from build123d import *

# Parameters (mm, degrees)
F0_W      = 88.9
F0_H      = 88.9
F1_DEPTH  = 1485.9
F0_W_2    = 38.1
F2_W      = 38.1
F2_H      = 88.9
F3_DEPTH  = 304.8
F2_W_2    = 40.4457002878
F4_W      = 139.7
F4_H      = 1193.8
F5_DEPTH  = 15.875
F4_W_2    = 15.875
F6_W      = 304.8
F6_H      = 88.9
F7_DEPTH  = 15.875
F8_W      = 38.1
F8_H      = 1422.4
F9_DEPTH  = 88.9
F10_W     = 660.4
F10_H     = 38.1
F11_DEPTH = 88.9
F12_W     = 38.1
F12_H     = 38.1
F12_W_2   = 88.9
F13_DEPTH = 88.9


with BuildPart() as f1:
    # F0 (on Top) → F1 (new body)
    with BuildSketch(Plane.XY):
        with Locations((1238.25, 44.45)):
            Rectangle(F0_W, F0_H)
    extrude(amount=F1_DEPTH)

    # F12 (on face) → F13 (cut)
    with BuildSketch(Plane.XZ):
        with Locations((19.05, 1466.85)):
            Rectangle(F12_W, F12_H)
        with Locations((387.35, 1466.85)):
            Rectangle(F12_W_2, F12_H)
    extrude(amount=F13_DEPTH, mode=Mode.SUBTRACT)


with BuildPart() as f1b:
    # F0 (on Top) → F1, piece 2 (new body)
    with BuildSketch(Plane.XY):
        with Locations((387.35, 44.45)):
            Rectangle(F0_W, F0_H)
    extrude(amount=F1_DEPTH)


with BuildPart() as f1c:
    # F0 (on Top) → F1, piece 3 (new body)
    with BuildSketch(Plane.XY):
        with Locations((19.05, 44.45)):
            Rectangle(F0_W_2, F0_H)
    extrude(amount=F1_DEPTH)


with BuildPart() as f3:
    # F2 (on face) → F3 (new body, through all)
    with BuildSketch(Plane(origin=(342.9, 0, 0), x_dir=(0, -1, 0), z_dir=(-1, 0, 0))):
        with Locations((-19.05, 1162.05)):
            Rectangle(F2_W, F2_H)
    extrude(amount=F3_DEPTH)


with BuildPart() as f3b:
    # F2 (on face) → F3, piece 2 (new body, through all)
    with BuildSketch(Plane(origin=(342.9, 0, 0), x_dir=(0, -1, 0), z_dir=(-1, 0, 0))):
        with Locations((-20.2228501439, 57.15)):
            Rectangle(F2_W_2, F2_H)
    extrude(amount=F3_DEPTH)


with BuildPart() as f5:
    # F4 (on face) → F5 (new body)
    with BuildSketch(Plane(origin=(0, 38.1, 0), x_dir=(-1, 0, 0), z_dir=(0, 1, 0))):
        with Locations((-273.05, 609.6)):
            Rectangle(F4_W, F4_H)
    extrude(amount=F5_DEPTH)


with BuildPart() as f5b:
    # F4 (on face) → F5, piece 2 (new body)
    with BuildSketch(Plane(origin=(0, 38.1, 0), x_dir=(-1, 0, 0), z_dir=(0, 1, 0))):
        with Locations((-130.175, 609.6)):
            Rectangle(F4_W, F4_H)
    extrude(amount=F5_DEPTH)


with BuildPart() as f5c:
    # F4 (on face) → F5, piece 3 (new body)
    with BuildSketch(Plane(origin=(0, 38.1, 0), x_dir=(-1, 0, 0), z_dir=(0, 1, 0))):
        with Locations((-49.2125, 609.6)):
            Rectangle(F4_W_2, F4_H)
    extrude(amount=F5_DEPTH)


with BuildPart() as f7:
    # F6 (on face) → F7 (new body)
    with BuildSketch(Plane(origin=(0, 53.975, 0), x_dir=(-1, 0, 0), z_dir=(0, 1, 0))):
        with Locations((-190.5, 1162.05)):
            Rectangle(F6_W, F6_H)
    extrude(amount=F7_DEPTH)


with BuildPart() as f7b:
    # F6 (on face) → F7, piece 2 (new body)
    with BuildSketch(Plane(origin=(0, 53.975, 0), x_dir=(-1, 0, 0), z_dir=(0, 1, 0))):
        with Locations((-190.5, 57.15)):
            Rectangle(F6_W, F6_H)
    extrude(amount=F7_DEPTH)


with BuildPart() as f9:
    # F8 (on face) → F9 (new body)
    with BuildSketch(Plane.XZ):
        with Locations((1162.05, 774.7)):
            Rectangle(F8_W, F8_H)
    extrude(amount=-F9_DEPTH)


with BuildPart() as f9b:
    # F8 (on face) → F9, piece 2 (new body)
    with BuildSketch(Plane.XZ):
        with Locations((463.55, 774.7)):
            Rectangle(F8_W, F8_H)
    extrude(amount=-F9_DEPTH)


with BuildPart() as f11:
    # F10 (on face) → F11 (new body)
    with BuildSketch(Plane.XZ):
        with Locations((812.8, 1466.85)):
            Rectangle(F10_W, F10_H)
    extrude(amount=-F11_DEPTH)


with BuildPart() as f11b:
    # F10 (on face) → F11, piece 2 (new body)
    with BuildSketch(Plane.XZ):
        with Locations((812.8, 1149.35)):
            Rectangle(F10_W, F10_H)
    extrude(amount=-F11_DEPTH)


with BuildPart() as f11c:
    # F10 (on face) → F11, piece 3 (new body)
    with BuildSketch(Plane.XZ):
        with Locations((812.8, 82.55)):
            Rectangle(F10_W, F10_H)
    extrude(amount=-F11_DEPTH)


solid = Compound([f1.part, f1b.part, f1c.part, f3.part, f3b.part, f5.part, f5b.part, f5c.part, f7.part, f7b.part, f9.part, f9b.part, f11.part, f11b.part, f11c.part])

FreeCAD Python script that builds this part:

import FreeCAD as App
import Part
import Sketcher
from FreeCAD import Vector
Q = App.Units.Quantity


def add_polygon(sketch, points):
    """Adds a closed chain of lines whose ends are joined by coincident constraints."""
    first, n = sketch.GeometryCount, len(points)
    for a, b in zip(points, points[1:] + points[:1]):
        sketch.addGeometry(Part.LineSegment(App.Vector(*a, 0), App.Vector(*b, 0)), False)
    for i in range(n):
        sketch.addConstraint(Sketcher.Constraint("Coincident", first + i, 2, first + (i + 1) % n, 1))

doc = App.newDocument("Part")
body = doc.addObject("PartDesign::Body", "Body")

# Sketch on XY plane
sketch1 = doc.addObject("Sketcher::SketchObject", "Sketch")
body.addObject(sketch1)
sketch1.AttachmentSupport = (doc.XY_Plane, [""])
sketch1.MapMode = "FlatFace"
add_polygon(sketch1, [(1194, 89), (1194, 0), (1283, 0), (1283, 89)])  # lines 0-3
sketch1.addConstraint([
    Sketcher.Constraint("Vertical", 0),
    Sketcher.Constraint("Horizontal", 1),
    Sketcher.Constraint("Vertical", 2),
    Sketcher.Constraint("Horizontal", 3),
    Sketcher.Constraint("PointOnObject", 0, 2, -1),
    Sketcher.Constraint("Equal", 3, 0),
    Sketcher.Constraint("DistanceX", 1, 1, 1, 2, Q("3.5 in")),
    Sketcher.Constraint("DistanceX", -1, 1, 0, 2, Q("47 in")),
])
pad1 = doc.addObject("PartDesign::Pad", "Pad")
body.addObject(pad1)
pad1.Profile = sketch1
pad1.Length = Q("58.5 in")

# Sketch on XZ plane
sketch2 = doc.addObject("Sketcher::SketchObject", "Sketch001")
body.addObject(sketch2)
sketch2.AttachmentSupport = (doc.XZ_Plane, [""])
sketch2.MapMode = "FlatFace"
add_polygon(sketch2, [(0, 1486), (0, 1448), (38, 1448), (38, 1486)])  # lines 0-3
add_polygon(sketch2, [(343, 1486), (343, 1448), (432, 1448), (432, 1486)])  # lines 4-7
sketch2.addConstraint([
    Sketcher.Constraint("Vertical", 0),
    Sketcher.Constraint("Horizontal", 1),
    Sketcher.Constraint("Vertical", 2),
    Sketcher.Constraint("Horizontal", 3),
    Sketcher.Constraint("Vertical", 4),
    Sketcher.Constraint("Horizontal", 5),
    Sketcher.Constraint("Vertical", 6),
    Sketcher.Constraint("Horizontal", 7),
    Sketcher.Constraint("PointOnObject", 0, 2, -2),
    Sketcher.Constraint("Horizontal", 1, 2, 4, 2),
    Sketcher.Constraint("Horizontal", 3, 2, 6, 2),
    Sketcher.Constraint("Equal", 3, 0),
    Sketcher.Constraint("DistanceX", 1, 1, 1, 2, Q("1.5 in")),
    Sketcher.Constraint("DistanceX", 5, 1, 5, 2, Q("3.5 in")),
    Sketcher.Constraint("DistanceY", -1, 1, 0, 2, Q("57 in")),
    Sketcher.Constraint("DistanceX", -1, 1, 5, 2, Q("17 in")),
])
pocket1 = doc.addObject("PartDesign::Pocket", "Pocket")
body.addObject(pocket1)
pocket1.Profile = sketch2
pocket1.Length = Q("3.5 in")
pocket1.Reversed = True
body2 = doc.addObject("PartDesign::Body", "Body001")

# Sketch on XY plane
sketch3 = doc.addObject("Sketcher::SketchObject", "Sketch002")
body2.addObject(sketch3)
sketch3.AttachmentSupport = (doc.getObject("XY_Plane001"), [""])
sketch3.MapMode = "FlatFace"
add_polygon(sketch3, [(343, 89), (343, 0), (432, 0), (432, 89)])  # lines 0-3
sketch3.addConstraint([
    Sketcher.Constraint("Vertical", 0),
    Sketcher.Constraint("Horizontal", 1),
    Sketcher.Constraint("Vertical", 2),
    Sketcher.Constraint("Horizontal", 3),
    Sketcher.Constraint("PointOnObject", 0, 2, -1),
    Sketcher.Constraint("Equal", 3, 0),
    Sketcher.Constraint("DistanceX", 1, 1, 1, 2, Q("3.5 in")),
    Sketcher.Constraint("DistanceX", -1, 1, 1, 2, Q("17 in")),
])
pad2 = doc.addObject("PartDesign::Pad", "Pad001")
body2.addObject(pad2)
pad2.Profile = sketch3
pad2.Length = Q("58.5 in")
body3 = doc.addObject("PartDesign::Body", "Body002")

# Sketch on XY plane
sketch4 = doc.addObject("Sketcher::SketchObject", "Sketch003")
body3.addObject(sketch4)
sketch4.AttachmentSupport = (doc.getObject("XY_Plane002"), [""])
sketch4.MapMode = "FlatFace"
add_polygon(sketch4, [(0, 89), (0, 0), (38, 0), (38, 89)])  # lines 0-3
sketch4.addConstraint([
    Sketcher.Constraint("Vertical", 0),
    Sketcher.Constraint("Horizontal", 1),
    Sketcher.Constraint("Vertical", 2),
    Sketcher.Constraint("Horizontal", 3),
    Sketcher.Constraint("Coincident", 0, 2, -1, 1),
    Sketcher.Constraint("DistanceX", 1, 1, 1, 2, Q("1.5 in")),
    Sketcher.Constraint("DistanceY", 0, 2, 0, 1, Q("3.5 in")),
])
pad3 = doc.addObject("PartDesign::Pad", "Pad002")
body3.addObject(pad3)
pad3.Profile = sketch4
pad3.Length = Q("58.5 in")
body4 = doc.addObject("PartDesign::Body", "Body003")

# Sketch on YZ plane
sketch5 = doc.addObject("Sketcher::SketchObject", "Sketch004")
body4.addObject(sketch5)
sketch5.AttachmentSupport = (doc.getObject("YZ_Plane003"), [""])
sketch5.MapMode = "FlatFace"
sketch5.AttachmentOffset = App.Placement(Vector(0, 0, 13.5 * 25.4), App.Rotation())
add_polygon(sketch5, [(38, 1206), (38, 1118), (0, 1118), (0, 1206)])  # lines 0-3
sketch5.addConstraint([
    Sketcher.Constraint("Vertical", 0),
    Sketcher.Constraint("Horizontal", 1),
    Sketcher.Constraint("Vertical", 2),
    Sketcher.Constraint("Horizontal", 3),
    Sketcher.Constraint("PointOnObject", 1, 2, -2),
    Sketcher.Constraint("DistanceX", 1, 2, 1, 1, Q("1.5 in")),
    Sketcher.Constraint("DistanceY", 0, 2, 0, 1, Q("3.5 in")),
    Sketcher.Constraint("DistanceY", -1, 1, 0, 2, Q("44 in")),
])
pad4 = doc.addObject("PartDesign::Pad", "Pad003")
body4.addObject(pad4)
pad4.Profile = sketch5
pad4.Length = Q("12 in")
pad4.Reversed = True
body5 = doc.addObject("PartDesign::Body", "Body004")

# Sketch on YZ plane
sketch6 = doc.addObject("Sketcher::SketchObject", "Sketch005")
body5.addObject(sketch6)
sketch6.AttachmentSupport = (doc.getObject("YZ_Plane004"), [""])
sketch6.MapMode = "FlatFace"
sketch6.AttachmentOffset = App.Placement(Vector(0, 0, 13.5 * 25.4), App.Rotation())
add_polygon(sketch6, [(40, 102), (40, 13), (0, 13), (0, 102)])  # lines 0-3
sketch6.addConstraint([
    Sketcher.Constraint("Vertical", 0),
    Sketcher.Constraint("Horizontal", 1),
    Sketcher.Constraint("Vertical", 2),
    Sketcher.Constraint("Horizontal", 3),
    Sketcher.Constraint("PointOnObject", 1, 2, -2),
    Sketcher.Constraint("DistanceY", 0, 2, 0, 1, Q("3.5 in")),
    Sketcher.Constraint("DistanceY", -1, 1, 2, 2, Q("4 in")),
    Sketcher.Constraint("DistanceX", 1, 2, 1, 1, Q("40.4457 mm")),
])
pad5 = doc.addObject("PartDesign::Pad", "Pad004")
body5.addObject(pad5)
pad5.Profile = sketch6
pad5.Length = Q("12 in")
pad5.Reversed = True
body6 = doc.addObject("PartDesign::Body", "Body005")

# Sketch on XZ plane
sketch7 = doc.addObject("Sketcher::SketchObject", "Sketch006")
body6.addObject(sketch7)
sketch7.AttachmentSupport = (doc.getObject("XZ_Plane005"), [""])
sketch7.MapMode = "FlatFace"
sketch7.AttachmentOffset = App.Placement(Vector(0, 0, -1.5 * 25.4), App.Rotation())
add_polygon(sketch7, [(343, 1206), (343, 13), (203, 13), (203, 1206)])  # lines 0-3
sketch7.addConstraint([
    Sketcher.Constraint("Vertical", 0),
    Sketcher.Constraint("Horizontal", 1),
    Sketcher.Constraint("Vertical", 2),
    Sketcher.Constraint("Horizontal", 3),
    Sketcher.Constraint("DistanceY", 0, 2, 0, 1, Q("47 in")),
    Sketcher.Constraint("DistanceX", 1, 2, 1, 1, Q("5.5 in")),
    Sketcher.Constraint("DistanceX", -1, 1, 1, 2, Q("8 in")),
    Sketcher.Constraint("DistanceY", -1, 1, 0, 2, Q("0.5 in")),
])
pad6 = doc.addObject("PartDesign::Pad", "Pad005")
body6.addObject(pad6)
pad6.Profile = sketch7
pad6.Length = Q("0.625 in")
pad6.Reversed = True
body7 = doc.addObject("PartDesign::Body", "Body006")

# Sketch on XZ plane
sketch8 = doc.addObject("Sketcher::SketchObject", "Sketch007")
body7.addObject(sketch8)
sketch8.AttachmentSupport = (doc.getObject("XZ_Plane006"), [""])
sketch8.MapMode = "FlatFace"
sketch8.AttachmentOffset = App.Placement(Vector(0, 0, -1.5 * 25.4), App.Rotation())
add_polygon(sketch8, [(200, 1206), (200, 13), (60, 13), (60, 1206)])  # lines 0-3
sketch8.addConstraint([
    Sketcher.Constraint("Vertical", 0),
    Sketcher.Constraint("Horizontal", 1),
    Sketcher.Constraint("Vertical", 2),
    Sketcher.Constraint("Horizontal", 3),
    Sketcher.Constraint("DistanceY", 0, 2, 0, 1, Q("47 in")),
    Sketcher.Constraint("DistanceX", 1, 2, 1, 1, Q("5.5 in")),
    Sketcher.Constraint("DistanceY", -1, 1, 0, 2, Q("0.5 in")),
    Sketcher.Constraint("DistanceX", -1, 1, 0, 2, Q("7.875 in")),
])
pad7 = doc.addObject("PartDesign::Pad", "Pad006")
body7.addObject(pad7)
pad7.Profile = sketch8
pad7.Length = Q("0.625 in")
pad7.Reversed = True
body8 = doc.addObject("PartDesign::Body", "Body007")

# Sketch on XZ plane
sketch9 = doc.addObject("Sketcher::SketchObject", "Sketch008")
body8.addObject(sketch9)
sketch9.AttachmentSupport = (doc.getObject("XZ_Plane007"), [""])
sketch9.MapMode = "FlatFace"
sketch9.AttachmentOffset = App.Placement(Vector(0, 0, -1.5 * 25.4), App.Rotation())
add_polygon(sketch9, [(57, 1206), (57, 13), (41, 13), (41, 1206)])  # lines 0-3
sketch9.addConstraint([
    Sketcher.Constraint("Vertical", 0),
    Sketcher.Constraint("Horizontal", 1),
    Sketcher.Constraint("Vertical", 2),
    Sketcher.Constraint("Horizontal", 3),
    Sketcher.Constraint("DistanceY", 0, 2, 0, 1, Q("47 in")),
    Sketcher.Constraint("DistanceY", -1, 1, 0, 2, Q("0.5 in")),
    Sketcher.Constraint("DistanceX", 1, 2, 1, 1, Q("0.625 in")),
    Sketcher.Constraint("DistanceX", -1, 1, 0, 2, Q("2.25 in")),
])
pad8 = doc.addObject("PartDesign::Pad", "Pad007")
body8.addObject(pad8)
pad8.Profile = sketch9
pad8.Length = Q("0.625 in")
pad8.Reversed = True
body9 = doc.addObject("PartDesign::Body", "Body008")

# Sketch on XZ plane
sketch10 = doc.addObject("Sketcher::SketchObject", "Sketch009")
body9.addObject(sketch10)
sketch10.AttachmentSupport = (doc.getObject("XZ_Plane008"), [""])
sketch10.MapMode = "FlatFace"
sketch10.AttachmentOffset = App.Placement(Vector(0, 0, -2.125 * 25.4), App.Rotation())
add_polygon(sketch10, [(343, 1206), (343, 1118), (38, 1118), (38, 1206)])  # lines 0-3
sketch10.addConstraint([
    Sketcher.Constraint("Vertical", 0),
    Sketcher.Constraint("Horizontal", 1),
    Sketcher.Constraint("Vertical", 2),
    Sketcher.Constraint("Horizontal", 3),
    Sketcher.Constraint("DistanceX", 1, 2, 1, 1, Q("12 in")),
    Sketcher.Constraint("DistanceY", 0, 2, 0, 1, Q("3.5 in")),
    Sketcher.Constraint("DistanceY", -1, 1, 0, 2, Q("44 in")),
    Sketcher.Constraint("DistanceX", -1, 1, 0, 2, Q("13.5 in")),
])
pad9 = doc.addObject("PartDesign::Pad", "Pad008")
body9.addObject(pad9)
pad9.Profile = sketch10
pad9.Length = Q("0.625 in")
pad9.Reversed = True
body10 = doc.addObject("PartDesign::Body", "Body009")

# Sketch on XZ plane
sketch11 = doc.addObject("Sketcher::SketchObject", "Sketch010")
body10.addObject(sketch11)
sketch11.AttachmentSupport = (doc.getObject("XZ_Plane009"), [""])
sketch11.MapMode = "FlatFace"
sketch11.AttachmentOffset = App.Placement(Vector(0, 0, -2.125 * 25.4), App.Rotation())
add_polygon(sketch11, [(343, 102), (343, 13), (38, 13), (38, 102)])  # lines 0-3
sketch11.addConstraint([
    Sketcher.Constraint("Vertical", 0),
    Sketcher.Constraint("Horizontal", 1),
    Sketcher.Constraint("Vertical", 2),
    Sketcher.Constraint("Horizontal", 3),
    Sketcher.Constraint("DistanceX", 1, 2, 1, 1, Q("12 in")),
    Sketcher.Constraint("DistanceY", 0, 2, 0, 1, Q("3.5 in")),
    Sketcher.Constraint("DistanceY", -1, 1, 2, 2, Q("4 in")),
    Sketcher.Constraint("DistanceX", -1, 1, 0, 2, Q("13.5 in")),
])
pad10 = doc.addObject("PartDesign::Pad", "Pad009")
body10.addObject(pad10)
pad10.Profile = sketch11
pad10.Length = Q("0.625 in")
pad10.Reversed = True
body11 = doc.addObject("PartDesign::Body", "Body010")

# Sketch on XZ plane
sketch12 = doc.addObject("Sketcher::SketchObject", "Sketch011")
body11.addObject(sketch12)
sketch12.AttachmentSupport = (doc.getObject("XZ_Plane010"), [""])
sketch12.MapMode = "FlatFace"
add_polygon(sketch12, [(1143, 1486), (1143, 64), (1181, 64), (1181, 1486)])  # lines 0-3
sketch12.addConstraint([
    Sketcher.Constraint("Vertical", 0),
    Sketcher.Constraint("Horizontal", 1),
    Sketcher.Constraint("Vertical", 2),
    Sketcher.Constraint("Horizontal", 3),
    Sketcher.Constraint("DistanceY", 0, 2, 0, 1, Q("56 in")),
    Sketcher.Constraint("DistanceX", 1, 1, 1, 2, Q("1.5 in")),
    Sketcher.Constraint("DistanceX", -1, 1, 0, 2, Q("45 in")),
    Sketcher.Constraint("DistanceY", -1, 1, 0, 2, Q("2.5 in")),
])
pad11 = doc.addObject("PartDesign::Pad", "Pad010")
body11.addObject(pad11)
pad11.Profile = sketch12
pad11.Length = Q("3.5 in")
pad11.Reversed = True
body12 = doc.addObject("PartDesign::Body", "Body011")

# Sketch on XZ plane
sketch13 = doc.addObject("Sketcher::SketchObject", "Sketch012")
body12.addObject(sketch13)
sketch13.AttachmentSupport = (doc.getObject("XZ_Plane011"), [""])
sketch13.MapMode = "FlatFace"
add_polygon(sketch13, [(444, 1486), (444, 64), (483, 64), (483, 1486)])  # lines 0-3
sketch13.addConstraint([
    Sketcher.Constraint("Vertical", 0),
    Sketcher.Constraint("Horizontal", 1),
    Sketcher.Constraint("Vertical", 2),
    Sketcher.Constraint("Horizontal", 3),
    Sketcher.Constraint("DistanceY", 0, 2, 0, 1, Q("56 in")),
    Sketcher.Constraint("DistanceX", 1, 1, 1, 2, Q("1.5 in")),
    Sketcher.Constraint("DistanceX", -1, 1, 1, 2, Q("19 in")),
    Sketcher.Constraint("DistanceY", -1, 1, 0, 2, Q("2.5 in")),
])
pad12 = doc.addObject("PartDesign::Pad", "Pad011")
body12.addObject(pad12)
pad12.Profile = sketch13
pad12.Length = Q("3.5 in")
pad12.Reversed = True
body13 = doc.addObject("PartDesign::Body", "Body012")

# Sketch on XZ plane
sketch14 = doc.addObject("Sketcher::SketchObject", "Sketch013")
body13.addObject(sketch14)
sketch14.AttachmentSupport = (doc.getObject("XZ_Plane012"), [""])
sketch14.MapMode = "FlatFace"
add_polygon(sketch14, [(483, 1486), (483, 1448), (1143, 1448), (1143, 1486)])  # lines 0-3
sketch14.addConstraint([
    Sketcher.Constraint("Vertical", 0),
    Sketcher.Constraint("Horizontal", 1),
    Sketcher.Constraint("Vertical", 2),
    Sketcher.Constraint("Horizontal", 3),
    Sketcher.Constraint("DistanceX", 1, 1, 1, 2, Q("26 in")),
    Sketcher.Constraint("DistanceY", 0, 2, 0, 1, Q("1.5 in")),
    Sketcher.Constraint("DistanceX", -1, 1, 0, 2, Q("19 in")),
    Sketcher.Constraint("DistanceY", -1, 1, 0, 2, Q("57 in")),
])
pad13 = doc.addObject("PartDesign::Pad", "Pad012")
body13.addObject(pad13)
pad13.Profile = sketch14
pad13.Length = Q("3.5 in")
pad13.Reversed = True
body14 = doc.addObject("PartDesign::Body", "Body013")

# Sketch on XZ plane
sketch15 = doc.addObject("Sketcher::SketchObject", "Sketch014")
body14.addObject(sketch15)
sketch15.AttachmentSupport = (doc.getObject("XZ_Plane013"), [""])
sketch15.MapMode = "FlatFace"
add_polygon(sketch15, [(483, 1168), (483, 1130), (1143, 1130), (1143, 1168)])  # lines 0-3
sketch15.addConstraint([
    Sketcher.Constraint("Vertical", 0),
    Sketcher.Constraint("Horizontal", 1),
    Sketcher.Constraint("Vertical", 2),
    Sketcher.Constraint("Horizontal", 3),
    Sketcher.Constraint("DistanceX", 1, 1, 1, 2, Q("26 in")),
    Sketcher.Constraint("DistanceY", 0, 2, 0, 1, Q("1.5 in")),
    Sketcher.Constraint("DistanceX", -1, 1, 0, 2, Q("19 in")),
    Sketcher.Constraint("DistanceY", -1, 1, 2, 2, Q("46 in")),
])
pad14 = doc.addObject("PartDesign::Pad", "Pad013")
body14.addObject(pad14)
pad14.Profile = sketch15
pad14.Length = Q("3.5 in")
pad14.Reversed = True
body15 = doc.addObject("PartDesign::Body", "Body014")

# Sketch on XZ plane
sketch16 = doc.addObject("Sketcher::SketchObject", "Sketch015")
body15.addObject(sketch16)
sketch16.AttachmentSupport = (doc.getObject("XZ_Plane014"), [""])
sketch16.MapMode = "FlatFace"
add_polygon(sketch16, [(483, 102), (483, 64), (1143, 64), (1143, 102)])  # lines 0-3
sketch16.addConstraint([
    Sketcher.Constraint("Vertical", 0),
    Sketcher.Constraint("Horizontal", 1),
    Sketcher.Constraint("Vertical", 2),
    Sketcher.Constraint("Horizontal", 3),
    Sketcher.Constraint("DistanceX", 1, 1, 1, 2, Q("26 in")),
    Sketcher.Constraint("DistanceY", 0, 2, 0, 1, Q("1.5 in")),
    Sketcher.Constraint("DistanceX", -1, 1, 0, 2, Q("19 in")),
    Sketcher.Constraint("DistanceY", -1, 1, 2, 2, Q("4 in")),
])
pad15 = doc.addObject("PartDesign::Pad", "Pad014")
body15.addObject(pad15)
pad15.Profile = sketch16
pad15.Length = Q("3.5 in")
pad15.Reversed = True

doc.recompute()
